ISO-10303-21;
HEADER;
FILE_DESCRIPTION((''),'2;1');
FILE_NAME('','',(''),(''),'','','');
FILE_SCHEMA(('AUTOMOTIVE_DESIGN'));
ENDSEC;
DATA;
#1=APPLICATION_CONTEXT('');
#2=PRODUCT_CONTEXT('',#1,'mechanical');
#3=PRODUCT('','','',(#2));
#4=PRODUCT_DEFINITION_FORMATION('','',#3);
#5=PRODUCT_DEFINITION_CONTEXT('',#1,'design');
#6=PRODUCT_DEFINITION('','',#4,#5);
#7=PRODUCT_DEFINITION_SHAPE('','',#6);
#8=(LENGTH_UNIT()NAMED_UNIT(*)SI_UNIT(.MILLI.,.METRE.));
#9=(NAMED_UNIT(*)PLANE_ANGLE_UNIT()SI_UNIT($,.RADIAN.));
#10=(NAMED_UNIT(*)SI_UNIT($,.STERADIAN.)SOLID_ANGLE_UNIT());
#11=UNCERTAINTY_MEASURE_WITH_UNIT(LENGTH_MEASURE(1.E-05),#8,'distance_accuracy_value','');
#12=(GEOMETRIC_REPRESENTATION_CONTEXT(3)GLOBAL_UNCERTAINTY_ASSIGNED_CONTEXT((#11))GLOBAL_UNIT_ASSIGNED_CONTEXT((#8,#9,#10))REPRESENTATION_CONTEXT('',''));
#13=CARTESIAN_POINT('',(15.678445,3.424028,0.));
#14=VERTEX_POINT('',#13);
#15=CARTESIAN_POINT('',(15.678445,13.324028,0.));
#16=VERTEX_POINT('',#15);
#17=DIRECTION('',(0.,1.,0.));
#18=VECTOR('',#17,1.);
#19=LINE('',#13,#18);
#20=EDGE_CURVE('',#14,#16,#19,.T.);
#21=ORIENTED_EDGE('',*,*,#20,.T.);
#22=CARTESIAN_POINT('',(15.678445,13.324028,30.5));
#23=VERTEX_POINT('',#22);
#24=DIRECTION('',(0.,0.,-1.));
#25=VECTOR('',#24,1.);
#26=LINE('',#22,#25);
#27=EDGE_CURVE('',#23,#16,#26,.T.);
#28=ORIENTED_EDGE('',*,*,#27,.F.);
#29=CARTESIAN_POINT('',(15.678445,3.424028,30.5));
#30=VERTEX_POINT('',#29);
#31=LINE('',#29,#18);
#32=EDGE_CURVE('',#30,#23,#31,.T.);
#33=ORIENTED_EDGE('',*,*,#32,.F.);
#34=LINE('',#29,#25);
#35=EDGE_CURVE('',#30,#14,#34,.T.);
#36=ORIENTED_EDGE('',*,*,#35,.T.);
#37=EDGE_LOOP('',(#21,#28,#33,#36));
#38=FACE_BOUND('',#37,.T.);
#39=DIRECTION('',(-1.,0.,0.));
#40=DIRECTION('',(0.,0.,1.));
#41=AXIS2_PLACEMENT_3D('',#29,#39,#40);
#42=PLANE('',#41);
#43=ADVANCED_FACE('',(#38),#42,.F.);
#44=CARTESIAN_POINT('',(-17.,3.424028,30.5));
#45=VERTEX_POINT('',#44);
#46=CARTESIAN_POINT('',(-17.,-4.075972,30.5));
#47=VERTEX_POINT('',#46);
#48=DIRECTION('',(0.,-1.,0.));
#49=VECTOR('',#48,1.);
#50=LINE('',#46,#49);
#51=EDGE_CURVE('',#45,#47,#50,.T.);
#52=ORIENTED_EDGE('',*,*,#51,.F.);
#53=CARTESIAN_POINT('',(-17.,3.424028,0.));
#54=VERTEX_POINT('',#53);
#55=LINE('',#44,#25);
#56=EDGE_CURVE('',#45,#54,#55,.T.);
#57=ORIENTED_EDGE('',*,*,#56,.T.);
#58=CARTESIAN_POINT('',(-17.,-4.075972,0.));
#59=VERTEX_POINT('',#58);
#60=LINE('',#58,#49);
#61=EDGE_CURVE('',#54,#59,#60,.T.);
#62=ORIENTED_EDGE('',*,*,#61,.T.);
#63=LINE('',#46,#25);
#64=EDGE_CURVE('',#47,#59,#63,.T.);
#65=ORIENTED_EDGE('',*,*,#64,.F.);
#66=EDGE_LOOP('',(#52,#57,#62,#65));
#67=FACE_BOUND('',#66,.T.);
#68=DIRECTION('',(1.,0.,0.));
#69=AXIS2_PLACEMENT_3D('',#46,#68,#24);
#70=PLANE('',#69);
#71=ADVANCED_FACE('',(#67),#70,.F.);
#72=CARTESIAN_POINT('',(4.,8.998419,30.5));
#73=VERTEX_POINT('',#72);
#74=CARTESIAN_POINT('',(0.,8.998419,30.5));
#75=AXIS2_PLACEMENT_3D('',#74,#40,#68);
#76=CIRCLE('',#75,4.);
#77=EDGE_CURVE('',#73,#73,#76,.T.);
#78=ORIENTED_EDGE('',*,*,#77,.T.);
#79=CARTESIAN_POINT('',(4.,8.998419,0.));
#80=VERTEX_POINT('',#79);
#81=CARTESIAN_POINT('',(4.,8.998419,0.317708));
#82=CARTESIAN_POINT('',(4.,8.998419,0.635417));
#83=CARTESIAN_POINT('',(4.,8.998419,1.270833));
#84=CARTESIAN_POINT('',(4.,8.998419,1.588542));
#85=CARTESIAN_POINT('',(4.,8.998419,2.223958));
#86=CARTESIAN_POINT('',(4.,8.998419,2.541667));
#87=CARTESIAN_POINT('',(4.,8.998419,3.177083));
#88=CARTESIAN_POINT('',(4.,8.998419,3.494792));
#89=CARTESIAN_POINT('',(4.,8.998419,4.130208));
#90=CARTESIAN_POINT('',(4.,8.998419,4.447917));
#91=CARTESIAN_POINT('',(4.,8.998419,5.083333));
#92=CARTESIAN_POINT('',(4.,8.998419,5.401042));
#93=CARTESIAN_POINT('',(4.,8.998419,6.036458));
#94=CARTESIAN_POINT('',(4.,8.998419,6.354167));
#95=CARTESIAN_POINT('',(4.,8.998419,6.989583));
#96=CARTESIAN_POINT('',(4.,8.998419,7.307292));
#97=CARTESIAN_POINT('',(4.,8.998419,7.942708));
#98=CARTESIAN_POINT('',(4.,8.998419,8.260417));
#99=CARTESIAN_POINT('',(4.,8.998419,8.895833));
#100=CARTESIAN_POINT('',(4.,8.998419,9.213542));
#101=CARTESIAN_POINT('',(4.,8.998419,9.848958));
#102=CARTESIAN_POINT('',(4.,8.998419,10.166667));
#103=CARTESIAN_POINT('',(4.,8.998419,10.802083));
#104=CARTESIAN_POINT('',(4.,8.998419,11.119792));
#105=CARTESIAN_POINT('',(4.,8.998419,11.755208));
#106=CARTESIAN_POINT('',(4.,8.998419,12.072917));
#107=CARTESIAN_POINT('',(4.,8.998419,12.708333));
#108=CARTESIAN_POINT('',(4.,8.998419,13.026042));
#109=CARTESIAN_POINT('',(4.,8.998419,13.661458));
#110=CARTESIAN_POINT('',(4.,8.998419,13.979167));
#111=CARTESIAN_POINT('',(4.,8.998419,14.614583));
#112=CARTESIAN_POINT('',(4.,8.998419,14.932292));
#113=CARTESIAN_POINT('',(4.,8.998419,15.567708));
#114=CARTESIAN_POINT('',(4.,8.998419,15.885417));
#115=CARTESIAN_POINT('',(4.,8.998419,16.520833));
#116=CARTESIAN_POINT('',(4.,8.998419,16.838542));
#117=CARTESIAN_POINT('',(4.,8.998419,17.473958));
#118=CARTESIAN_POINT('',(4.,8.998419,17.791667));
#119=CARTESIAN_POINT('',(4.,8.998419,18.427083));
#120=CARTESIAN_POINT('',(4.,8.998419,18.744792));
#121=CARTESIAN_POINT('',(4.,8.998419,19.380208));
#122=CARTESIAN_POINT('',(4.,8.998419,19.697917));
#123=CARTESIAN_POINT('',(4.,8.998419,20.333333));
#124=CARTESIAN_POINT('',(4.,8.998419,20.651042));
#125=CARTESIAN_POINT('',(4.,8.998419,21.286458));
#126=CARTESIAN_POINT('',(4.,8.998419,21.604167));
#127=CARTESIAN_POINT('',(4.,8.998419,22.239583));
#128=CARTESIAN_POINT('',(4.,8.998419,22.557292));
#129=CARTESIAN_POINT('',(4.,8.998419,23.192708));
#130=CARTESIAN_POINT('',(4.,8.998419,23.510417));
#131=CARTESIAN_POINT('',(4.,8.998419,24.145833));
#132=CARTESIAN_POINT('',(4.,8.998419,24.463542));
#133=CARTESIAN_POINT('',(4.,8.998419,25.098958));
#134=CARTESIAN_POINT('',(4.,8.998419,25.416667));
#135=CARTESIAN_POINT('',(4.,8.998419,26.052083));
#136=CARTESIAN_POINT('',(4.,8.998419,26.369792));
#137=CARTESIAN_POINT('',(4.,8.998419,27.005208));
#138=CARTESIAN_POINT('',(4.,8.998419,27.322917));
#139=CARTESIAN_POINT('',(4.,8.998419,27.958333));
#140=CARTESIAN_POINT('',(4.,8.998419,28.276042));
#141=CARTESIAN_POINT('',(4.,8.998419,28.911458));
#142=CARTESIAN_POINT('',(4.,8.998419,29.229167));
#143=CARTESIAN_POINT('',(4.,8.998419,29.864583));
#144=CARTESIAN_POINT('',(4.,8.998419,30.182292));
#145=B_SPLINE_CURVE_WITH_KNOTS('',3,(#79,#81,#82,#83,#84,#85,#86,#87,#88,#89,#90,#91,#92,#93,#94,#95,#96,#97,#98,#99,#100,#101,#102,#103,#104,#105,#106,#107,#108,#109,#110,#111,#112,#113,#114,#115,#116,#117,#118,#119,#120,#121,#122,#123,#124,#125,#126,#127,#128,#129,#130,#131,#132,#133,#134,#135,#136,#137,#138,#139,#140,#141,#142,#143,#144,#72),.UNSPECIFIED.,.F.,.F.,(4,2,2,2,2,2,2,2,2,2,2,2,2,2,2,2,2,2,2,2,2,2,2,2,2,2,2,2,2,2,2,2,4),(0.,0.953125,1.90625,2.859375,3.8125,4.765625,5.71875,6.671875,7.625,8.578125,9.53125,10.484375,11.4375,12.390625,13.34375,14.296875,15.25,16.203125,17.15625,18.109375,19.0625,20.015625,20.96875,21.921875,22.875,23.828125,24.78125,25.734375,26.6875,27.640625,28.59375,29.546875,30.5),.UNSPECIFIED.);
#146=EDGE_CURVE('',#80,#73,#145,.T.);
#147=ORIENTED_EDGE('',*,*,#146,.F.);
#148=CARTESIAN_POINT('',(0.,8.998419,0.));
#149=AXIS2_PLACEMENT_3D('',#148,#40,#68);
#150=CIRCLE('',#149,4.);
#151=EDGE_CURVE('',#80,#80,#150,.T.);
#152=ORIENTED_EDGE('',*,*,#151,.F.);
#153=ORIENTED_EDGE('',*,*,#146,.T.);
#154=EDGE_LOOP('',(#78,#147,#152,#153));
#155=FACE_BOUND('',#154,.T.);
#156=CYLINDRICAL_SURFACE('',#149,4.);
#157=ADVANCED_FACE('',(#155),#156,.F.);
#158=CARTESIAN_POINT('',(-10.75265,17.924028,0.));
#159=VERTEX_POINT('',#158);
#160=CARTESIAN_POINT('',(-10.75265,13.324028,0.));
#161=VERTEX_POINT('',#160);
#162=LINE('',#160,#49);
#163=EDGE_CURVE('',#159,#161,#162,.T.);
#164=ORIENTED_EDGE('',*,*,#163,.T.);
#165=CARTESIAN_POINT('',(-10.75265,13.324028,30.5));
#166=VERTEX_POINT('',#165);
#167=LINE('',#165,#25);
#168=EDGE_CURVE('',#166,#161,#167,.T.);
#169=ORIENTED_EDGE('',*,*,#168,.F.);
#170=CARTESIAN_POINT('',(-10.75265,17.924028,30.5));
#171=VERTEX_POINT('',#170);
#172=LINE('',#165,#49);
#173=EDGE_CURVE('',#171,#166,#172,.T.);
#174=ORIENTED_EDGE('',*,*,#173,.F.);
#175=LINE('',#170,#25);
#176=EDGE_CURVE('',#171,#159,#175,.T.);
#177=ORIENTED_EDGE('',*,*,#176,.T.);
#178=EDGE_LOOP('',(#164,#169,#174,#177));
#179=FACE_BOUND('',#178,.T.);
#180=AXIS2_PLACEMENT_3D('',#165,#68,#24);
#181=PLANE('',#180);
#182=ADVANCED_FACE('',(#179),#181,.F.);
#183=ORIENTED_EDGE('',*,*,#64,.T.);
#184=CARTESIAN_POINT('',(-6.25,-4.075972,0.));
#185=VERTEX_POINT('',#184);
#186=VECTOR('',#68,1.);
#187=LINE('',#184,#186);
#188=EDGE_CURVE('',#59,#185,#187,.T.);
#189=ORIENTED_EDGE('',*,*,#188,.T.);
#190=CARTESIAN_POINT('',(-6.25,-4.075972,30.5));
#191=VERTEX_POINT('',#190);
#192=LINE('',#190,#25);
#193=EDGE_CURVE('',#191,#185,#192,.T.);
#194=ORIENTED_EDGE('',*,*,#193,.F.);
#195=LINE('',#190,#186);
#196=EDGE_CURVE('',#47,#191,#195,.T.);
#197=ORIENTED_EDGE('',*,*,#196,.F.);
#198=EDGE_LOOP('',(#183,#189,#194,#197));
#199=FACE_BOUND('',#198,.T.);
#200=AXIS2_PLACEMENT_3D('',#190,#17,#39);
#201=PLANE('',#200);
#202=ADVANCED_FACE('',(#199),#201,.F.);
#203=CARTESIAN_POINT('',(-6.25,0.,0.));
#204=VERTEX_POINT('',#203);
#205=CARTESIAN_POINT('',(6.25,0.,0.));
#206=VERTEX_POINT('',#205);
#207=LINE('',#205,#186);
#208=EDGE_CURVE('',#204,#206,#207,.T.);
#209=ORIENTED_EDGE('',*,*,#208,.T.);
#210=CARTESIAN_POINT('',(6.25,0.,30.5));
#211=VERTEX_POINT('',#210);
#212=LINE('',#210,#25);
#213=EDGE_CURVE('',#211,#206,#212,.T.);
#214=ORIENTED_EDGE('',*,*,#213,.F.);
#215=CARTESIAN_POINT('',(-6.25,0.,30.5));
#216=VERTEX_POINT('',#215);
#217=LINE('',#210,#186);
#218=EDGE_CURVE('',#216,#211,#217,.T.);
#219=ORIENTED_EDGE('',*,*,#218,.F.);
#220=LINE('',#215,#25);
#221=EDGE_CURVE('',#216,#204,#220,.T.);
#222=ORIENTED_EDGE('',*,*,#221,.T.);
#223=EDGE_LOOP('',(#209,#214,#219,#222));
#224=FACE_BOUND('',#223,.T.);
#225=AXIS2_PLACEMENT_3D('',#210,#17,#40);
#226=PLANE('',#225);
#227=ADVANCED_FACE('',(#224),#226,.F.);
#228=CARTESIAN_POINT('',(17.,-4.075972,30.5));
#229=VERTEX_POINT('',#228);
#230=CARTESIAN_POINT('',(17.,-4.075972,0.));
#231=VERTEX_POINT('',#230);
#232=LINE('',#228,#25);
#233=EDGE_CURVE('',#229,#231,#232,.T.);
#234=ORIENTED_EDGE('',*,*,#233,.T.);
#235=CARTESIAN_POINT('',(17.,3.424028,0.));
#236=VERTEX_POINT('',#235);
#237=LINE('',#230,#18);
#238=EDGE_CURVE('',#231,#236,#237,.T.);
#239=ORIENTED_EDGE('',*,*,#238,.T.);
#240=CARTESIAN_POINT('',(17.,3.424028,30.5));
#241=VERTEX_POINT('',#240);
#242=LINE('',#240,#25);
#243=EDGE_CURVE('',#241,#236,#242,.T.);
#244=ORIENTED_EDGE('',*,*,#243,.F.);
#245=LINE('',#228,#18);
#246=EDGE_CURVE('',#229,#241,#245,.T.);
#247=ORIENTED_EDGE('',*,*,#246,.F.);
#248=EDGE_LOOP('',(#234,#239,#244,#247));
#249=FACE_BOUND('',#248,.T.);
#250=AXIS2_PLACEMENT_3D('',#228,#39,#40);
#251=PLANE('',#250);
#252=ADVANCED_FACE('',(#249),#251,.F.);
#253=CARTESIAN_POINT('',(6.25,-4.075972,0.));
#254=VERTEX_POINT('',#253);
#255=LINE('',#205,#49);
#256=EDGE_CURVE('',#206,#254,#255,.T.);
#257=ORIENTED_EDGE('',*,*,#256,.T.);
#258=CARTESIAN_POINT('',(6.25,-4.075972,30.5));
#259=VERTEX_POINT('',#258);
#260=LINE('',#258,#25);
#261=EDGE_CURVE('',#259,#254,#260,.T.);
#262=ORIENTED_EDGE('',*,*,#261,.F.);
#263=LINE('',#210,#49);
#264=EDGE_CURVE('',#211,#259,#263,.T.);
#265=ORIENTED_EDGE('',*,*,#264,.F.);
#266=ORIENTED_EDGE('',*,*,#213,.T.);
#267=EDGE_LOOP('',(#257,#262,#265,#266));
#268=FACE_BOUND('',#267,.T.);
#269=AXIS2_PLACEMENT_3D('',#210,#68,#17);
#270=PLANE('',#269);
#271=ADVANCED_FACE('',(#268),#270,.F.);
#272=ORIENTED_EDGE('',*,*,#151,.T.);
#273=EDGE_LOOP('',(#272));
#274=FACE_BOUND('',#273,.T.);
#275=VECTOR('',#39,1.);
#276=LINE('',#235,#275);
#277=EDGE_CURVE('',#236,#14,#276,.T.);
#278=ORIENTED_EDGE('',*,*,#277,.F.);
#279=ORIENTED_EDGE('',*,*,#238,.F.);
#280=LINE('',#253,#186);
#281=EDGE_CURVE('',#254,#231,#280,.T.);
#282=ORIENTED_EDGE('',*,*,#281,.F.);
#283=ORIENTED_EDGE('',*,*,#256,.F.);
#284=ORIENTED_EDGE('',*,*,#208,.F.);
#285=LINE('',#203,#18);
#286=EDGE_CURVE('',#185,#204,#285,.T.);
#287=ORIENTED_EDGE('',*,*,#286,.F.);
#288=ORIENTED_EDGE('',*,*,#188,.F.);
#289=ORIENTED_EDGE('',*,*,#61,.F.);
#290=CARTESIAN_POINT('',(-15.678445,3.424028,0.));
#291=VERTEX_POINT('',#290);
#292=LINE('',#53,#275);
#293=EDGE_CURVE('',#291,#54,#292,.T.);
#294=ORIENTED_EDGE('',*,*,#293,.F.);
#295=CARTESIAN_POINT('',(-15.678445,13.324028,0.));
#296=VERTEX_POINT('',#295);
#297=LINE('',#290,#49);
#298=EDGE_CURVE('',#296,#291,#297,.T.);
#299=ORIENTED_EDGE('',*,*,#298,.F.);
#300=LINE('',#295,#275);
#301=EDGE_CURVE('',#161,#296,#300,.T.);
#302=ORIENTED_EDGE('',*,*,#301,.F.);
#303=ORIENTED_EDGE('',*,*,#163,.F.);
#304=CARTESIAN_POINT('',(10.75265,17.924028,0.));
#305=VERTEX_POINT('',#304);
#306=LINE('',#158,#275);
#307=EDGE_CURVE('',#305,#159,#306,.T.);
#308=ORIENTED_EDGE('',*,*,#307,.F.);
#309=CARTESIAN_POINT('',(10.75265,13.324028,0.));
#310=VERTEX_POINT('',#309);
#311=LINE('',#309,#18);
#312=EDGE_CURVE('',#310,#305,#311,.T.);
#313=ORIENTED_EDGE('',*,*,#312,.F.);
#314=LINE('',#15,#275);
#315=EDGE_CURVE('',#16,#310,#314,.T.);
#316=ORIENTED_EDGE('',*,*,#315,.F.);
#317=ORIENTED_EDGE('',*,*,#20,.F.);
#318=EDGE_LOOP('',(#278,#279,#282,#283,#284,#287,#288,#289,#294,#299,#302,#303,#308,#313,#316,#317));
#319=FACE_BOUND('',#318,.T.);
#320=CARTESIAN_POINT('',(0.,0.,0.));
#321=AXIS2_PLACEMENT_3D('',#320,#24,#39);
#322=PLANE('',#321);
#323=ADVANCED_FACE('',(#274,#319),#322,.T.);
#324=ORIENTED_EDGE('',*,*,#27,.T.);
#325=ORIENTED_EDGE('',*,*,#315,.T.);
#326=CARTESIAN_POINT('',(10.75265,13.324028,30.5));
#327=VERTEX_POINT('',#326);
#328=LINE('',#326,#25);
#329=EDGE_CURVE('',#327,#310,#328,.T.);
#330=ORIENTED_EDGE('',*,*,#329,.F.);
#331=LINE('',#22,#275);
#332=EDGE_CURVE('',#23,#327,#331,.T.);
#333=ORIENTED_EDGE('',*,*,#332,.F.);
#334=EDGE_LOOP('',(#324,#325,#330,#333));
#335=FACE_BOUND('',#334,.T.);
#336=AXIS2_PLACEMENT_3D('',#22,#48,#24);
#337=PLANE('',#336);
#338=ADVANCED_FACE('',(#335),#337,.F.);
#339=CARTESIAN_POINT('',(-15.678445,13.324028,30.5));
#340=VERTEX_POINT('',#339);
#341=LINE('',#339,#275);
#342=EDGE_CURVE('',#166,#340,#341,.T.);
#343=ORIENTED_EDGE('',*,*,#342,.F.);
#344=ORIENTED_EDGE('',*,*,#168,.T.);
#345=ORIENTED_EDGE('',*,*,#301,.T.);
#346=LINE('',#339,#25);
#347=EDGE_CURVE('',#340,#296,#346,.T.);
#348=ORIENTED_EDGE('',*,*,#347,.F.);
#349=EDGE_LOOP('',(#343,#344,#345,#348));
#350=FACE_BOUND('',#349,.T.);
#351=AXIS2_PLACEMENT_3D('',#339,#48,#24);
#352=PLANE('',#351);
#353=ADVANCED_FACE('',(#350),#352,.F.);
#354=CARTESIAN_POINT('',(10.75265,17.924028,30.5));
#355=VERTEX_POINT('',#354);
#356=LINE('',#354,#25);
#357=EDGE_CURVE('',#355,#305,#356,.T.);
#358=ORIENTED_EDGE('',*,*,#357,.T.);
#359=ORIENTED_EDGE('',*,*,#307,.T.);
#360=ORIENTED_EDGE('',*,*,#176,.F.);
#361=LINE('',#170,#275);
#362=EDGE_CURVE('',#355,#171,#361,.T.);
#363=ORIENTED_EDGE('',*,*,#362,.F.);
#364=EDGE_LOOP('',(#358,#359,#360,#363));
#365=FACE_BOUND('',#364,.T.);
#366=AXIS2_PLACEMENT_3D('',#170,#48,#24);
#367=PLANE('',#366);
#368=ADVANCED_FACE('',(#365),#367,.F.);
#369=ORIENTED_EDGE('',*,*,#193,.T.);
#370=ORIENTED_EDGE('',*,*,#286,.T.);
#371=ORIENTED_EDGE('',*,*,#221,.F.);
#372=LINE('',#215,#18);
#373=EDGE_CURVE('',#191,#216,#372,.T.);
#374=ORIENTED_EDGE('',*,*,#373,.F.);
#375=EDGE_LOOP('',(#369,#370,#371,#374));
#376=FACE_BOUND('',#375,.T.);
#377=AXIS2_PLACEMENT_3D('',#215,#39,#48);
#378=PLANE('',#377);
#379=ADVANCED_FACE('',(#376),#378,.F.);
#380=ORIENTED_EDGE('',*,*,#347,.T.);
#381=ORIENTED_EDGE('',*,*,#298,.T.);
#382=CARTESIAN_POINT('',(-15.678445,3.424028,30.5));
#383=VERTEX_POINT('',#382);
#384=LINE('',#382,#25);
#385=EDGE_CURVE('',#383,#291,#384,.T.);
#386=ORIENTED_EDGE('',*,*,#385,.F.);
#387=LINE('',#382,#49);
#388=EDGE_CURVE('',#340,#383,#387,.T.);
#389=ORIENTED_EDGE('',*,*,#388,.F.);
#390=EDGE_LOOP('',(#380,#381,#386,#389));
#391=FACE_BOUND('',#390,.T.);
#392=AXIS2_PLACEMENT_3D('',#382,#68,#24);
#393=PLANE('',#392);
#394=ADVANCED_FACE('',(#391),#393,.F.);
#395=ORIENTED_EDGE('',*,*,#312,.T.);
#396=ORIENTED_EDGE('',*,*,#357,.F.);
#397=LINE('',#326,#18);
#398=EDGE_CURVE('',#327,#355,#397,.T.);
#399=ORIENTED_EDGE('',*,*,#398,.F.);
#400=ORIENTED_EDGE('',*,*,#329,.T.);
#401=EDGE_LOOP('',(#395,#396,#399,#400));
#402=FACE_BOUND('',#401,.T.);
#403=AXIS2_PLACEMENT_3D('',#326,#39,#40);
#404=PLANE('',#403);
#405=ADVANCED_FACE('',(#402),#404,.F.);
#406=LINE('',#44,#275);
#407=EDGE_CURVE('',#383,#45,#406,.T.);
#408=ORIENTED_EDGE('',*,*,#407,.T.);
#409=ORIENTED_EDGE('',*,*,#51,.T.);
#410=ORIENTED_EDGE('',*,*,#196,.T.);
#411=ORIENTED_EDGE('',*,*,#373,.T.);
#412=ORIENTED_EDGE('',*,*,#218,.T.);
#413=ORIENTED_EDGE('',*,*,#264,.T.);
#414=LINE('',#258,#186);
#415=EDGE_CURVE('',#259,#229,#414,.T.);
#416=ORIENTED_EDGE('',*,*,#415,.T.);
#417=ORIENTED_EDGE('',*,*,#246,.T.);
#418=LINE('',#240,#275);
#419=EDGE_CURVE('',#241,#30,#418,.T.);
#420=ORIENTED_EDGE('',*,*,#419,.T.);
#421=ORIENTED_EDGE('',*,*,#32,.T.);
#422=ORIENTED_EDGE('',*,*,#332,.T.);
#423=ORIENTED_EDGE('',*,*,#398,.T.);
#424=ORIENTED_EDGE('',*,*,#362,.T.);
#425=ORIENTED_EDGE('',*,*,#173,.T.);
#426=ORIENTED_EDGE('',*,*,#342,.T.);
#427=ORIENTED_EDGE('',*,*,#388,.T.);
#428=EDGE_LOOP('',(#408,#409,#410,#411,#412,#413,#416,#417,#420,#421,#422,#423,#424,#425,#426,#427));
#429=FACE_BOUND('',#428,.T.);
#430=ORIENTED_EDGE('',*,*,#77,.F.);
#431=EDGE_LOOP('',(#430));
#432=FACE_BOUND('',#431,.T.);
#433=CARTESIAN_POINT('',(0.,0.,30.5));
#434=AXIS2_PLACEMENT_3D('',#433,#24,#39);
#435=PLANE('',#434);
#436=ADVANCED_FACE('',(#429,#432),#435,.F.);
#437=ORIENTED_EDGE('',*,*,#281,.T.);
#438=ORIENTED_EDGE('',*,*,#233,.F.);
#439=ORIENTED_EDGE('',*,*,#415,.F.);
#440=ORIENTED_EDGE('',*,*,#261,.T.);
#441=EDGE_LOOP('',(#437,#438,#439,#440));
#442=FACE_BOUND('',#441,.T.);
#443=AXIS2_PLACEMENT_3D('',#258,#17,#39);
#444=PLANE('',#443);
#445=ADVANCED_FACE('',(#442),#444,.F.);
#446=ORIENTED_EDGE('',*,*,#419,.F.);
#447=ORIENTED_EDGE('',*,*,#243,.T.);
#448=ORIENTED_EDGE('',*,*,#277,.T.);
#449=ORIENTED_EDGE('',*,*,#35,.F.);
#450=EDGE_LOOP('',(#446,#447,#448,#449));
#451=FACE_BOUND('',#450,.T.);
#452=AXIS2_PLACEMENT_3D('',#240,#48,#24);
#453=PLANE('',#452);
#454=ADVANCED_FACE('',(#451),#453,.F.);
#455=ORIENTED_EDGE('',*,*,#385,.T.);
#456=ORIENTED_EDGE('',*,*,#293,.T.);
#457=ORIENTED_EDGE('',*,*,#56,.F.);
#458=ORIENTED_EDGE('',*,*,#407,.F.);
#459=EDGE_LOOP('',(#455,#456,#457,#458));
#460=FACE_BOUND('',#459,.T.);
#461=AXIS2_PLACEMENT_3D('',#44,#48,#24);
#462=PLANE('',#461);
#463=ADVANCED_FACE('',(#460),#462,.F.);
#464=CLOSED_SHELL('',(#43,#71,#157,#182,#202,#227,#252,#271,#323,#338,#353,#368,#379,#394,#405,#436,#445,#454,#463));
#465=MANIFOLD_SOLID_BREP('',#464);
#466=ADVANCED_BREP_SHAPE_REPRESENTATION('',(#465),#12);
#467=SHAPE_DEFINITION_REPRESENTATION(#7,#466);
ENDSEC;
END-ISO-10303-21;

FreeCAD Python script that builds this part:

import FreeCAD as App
import Part
import Sketcher
Q = App.Units.Quantity


def add_polygon(sketch, points):
    """Adds a closed chain of lines whose ends are joined by coincident constraints."""
    first, n = sketch.GeometryCount, len(points)
    for a, b in zip(points, points[1:] + points[:1]):
        sketch.addGeometry(Part.LineSegment(App.Vector(*a, 0), App.Vector(*b, 0)), False)
    for i in range(n):
        sketch.addConstraint(Sketcher.Constraint("Coincident", first + i, 2, first + (i + 1) % n, 1))

doc = App.newDocument("Part")
body = doc.addObject("PartDesign::Body", "Body")

sketch1 = doc.addObject("Sketcher::SketchObject", "Sketch")
body.addObject(sketch1)
sketch1.AttachmentSupport = (doc.XY_Plane, [""])
sketch1.MapMode = "FlatFace"
add_polygon(sketch1, [(-6.2, 0), (6.2, 0), (6.2, -4.1), (17, -4.1), (17, 3.4), (15.7, 3.4), (15.7, 13.3), (10.8, 13.3), (10.8, 17.9), (-10.8, 17.9), (-10.8, 13.3), (-15.7, 13.3), (-15.7, 3.4), (-17, 3.4), (-17, -4.1), (-6.2, -4.1)])
sketch1.addConstraint([
    Sketcher.Constraint("Horizontal", 0),
    Sketcher.Constraint("Vertical", 1),
    Sketcher.Constraint("Horizontal", 2),
    Sketcher.Constraint("Vertical", 3),
    Sketcher.Constraint("Horizontal", 4),
    Sketcher.Constraint("Vertical", 5),
    Sketcher.Constraint("Horizontal", 6),
    Sketcher.Constraint("Vertical", 7),
    Sketcher.Constraint("Horizontal", 8),
    Sketcher.Constraint("Vertical", 9),
    Sketcher.Constraint("Horizontal", 10),
    Sketcher.Constraint("Vertical", 11),
    Sketcher.Constraint("Horizontal", 12),
    Sketcher.Constraint("Vertical", 13),
    Sketcher.Constraint("Horizontal", 14),
    Sketcher.Constraint("Vertical", 15),
    Sketcher.Constraint("Symmetric", 0, 2, 15, 2, -1, 1),
    Sketcher.Constraint("Symmetric", 6, 2, 9, 2, -2),
    Sketcher.Constraint("Symmetric", 4, 2, 11, 2, -2),
    Sketcher.Constraint("Symmetric", 2, 2, 13, 2, -2),
    Sketcher.Constraint("DistanceX", 0, 1, 0, 2, Q("12.5 mm")),
    Sketcher.Constraint("DistanceY", 3, 1, 3, 2, Q("7.5 mm")),
    Sketcher.Constraint("DistanceY", 5, 1, 5, 2, Q("9.9 mm")),
    Sketcher.Constraint("DistanceY", 7, 1, 7, 2, Q("4.6 mm")),
    Sketcher.Constraint("DistanceX", -1, 1, 2, 2, Q("17 mm")),
    Sketcher.Constraint("DistanceX", 8, 2, 8, 1, Q("21.5053 mm")),
    Sketcher.Constraint("DistanceY", 1, 2, 1, 1, Q("4.075972 mm")),
    Sketcher.Constraint("DistanceX", 4, 2, 4, 1, Q("1.321555 mm")),
])
pad1 = doc.addObject("PartDesign::Pad", "Pad")
body.addObject(pad1)
pad1.Profile = sketch1
pad1.Length = 30.5

sketch2 = doc.addObject("Sketcher::SketchObject", "Sketch001")
body.addObject(sketch2)
sketch2.AttachmentSupport = (doc.XY_Plane, [""])
sketch2.MapMode = "FlatFace"
sketch2.AttachmentOffset = App.Placement(App.Vector(0, 0, 30.5), App.Rotation())
sketch2.addGeometry(Part.Circle(App.Vector(0, 9, 0), App.Vector(0, 0, 1), 4), False)
sketch2.addConstraint([
    Sketcher.Constraint("PointOnObject", 0, 3, -2),
    Sketcher.Constraint("Diameter", 0, Q("8 mm")),
    Sketcher.Constraint("DistanceY", -1, 1, 0, 3, Q("8.998419 mm")),
])
pocket1 = doc.addObject("PartDesign::Pocket", "Pocket")
body.addObject(pocket1)
pocket1.Profile = sketch2
pocket1.Length = 30.5

doc.recompute()
